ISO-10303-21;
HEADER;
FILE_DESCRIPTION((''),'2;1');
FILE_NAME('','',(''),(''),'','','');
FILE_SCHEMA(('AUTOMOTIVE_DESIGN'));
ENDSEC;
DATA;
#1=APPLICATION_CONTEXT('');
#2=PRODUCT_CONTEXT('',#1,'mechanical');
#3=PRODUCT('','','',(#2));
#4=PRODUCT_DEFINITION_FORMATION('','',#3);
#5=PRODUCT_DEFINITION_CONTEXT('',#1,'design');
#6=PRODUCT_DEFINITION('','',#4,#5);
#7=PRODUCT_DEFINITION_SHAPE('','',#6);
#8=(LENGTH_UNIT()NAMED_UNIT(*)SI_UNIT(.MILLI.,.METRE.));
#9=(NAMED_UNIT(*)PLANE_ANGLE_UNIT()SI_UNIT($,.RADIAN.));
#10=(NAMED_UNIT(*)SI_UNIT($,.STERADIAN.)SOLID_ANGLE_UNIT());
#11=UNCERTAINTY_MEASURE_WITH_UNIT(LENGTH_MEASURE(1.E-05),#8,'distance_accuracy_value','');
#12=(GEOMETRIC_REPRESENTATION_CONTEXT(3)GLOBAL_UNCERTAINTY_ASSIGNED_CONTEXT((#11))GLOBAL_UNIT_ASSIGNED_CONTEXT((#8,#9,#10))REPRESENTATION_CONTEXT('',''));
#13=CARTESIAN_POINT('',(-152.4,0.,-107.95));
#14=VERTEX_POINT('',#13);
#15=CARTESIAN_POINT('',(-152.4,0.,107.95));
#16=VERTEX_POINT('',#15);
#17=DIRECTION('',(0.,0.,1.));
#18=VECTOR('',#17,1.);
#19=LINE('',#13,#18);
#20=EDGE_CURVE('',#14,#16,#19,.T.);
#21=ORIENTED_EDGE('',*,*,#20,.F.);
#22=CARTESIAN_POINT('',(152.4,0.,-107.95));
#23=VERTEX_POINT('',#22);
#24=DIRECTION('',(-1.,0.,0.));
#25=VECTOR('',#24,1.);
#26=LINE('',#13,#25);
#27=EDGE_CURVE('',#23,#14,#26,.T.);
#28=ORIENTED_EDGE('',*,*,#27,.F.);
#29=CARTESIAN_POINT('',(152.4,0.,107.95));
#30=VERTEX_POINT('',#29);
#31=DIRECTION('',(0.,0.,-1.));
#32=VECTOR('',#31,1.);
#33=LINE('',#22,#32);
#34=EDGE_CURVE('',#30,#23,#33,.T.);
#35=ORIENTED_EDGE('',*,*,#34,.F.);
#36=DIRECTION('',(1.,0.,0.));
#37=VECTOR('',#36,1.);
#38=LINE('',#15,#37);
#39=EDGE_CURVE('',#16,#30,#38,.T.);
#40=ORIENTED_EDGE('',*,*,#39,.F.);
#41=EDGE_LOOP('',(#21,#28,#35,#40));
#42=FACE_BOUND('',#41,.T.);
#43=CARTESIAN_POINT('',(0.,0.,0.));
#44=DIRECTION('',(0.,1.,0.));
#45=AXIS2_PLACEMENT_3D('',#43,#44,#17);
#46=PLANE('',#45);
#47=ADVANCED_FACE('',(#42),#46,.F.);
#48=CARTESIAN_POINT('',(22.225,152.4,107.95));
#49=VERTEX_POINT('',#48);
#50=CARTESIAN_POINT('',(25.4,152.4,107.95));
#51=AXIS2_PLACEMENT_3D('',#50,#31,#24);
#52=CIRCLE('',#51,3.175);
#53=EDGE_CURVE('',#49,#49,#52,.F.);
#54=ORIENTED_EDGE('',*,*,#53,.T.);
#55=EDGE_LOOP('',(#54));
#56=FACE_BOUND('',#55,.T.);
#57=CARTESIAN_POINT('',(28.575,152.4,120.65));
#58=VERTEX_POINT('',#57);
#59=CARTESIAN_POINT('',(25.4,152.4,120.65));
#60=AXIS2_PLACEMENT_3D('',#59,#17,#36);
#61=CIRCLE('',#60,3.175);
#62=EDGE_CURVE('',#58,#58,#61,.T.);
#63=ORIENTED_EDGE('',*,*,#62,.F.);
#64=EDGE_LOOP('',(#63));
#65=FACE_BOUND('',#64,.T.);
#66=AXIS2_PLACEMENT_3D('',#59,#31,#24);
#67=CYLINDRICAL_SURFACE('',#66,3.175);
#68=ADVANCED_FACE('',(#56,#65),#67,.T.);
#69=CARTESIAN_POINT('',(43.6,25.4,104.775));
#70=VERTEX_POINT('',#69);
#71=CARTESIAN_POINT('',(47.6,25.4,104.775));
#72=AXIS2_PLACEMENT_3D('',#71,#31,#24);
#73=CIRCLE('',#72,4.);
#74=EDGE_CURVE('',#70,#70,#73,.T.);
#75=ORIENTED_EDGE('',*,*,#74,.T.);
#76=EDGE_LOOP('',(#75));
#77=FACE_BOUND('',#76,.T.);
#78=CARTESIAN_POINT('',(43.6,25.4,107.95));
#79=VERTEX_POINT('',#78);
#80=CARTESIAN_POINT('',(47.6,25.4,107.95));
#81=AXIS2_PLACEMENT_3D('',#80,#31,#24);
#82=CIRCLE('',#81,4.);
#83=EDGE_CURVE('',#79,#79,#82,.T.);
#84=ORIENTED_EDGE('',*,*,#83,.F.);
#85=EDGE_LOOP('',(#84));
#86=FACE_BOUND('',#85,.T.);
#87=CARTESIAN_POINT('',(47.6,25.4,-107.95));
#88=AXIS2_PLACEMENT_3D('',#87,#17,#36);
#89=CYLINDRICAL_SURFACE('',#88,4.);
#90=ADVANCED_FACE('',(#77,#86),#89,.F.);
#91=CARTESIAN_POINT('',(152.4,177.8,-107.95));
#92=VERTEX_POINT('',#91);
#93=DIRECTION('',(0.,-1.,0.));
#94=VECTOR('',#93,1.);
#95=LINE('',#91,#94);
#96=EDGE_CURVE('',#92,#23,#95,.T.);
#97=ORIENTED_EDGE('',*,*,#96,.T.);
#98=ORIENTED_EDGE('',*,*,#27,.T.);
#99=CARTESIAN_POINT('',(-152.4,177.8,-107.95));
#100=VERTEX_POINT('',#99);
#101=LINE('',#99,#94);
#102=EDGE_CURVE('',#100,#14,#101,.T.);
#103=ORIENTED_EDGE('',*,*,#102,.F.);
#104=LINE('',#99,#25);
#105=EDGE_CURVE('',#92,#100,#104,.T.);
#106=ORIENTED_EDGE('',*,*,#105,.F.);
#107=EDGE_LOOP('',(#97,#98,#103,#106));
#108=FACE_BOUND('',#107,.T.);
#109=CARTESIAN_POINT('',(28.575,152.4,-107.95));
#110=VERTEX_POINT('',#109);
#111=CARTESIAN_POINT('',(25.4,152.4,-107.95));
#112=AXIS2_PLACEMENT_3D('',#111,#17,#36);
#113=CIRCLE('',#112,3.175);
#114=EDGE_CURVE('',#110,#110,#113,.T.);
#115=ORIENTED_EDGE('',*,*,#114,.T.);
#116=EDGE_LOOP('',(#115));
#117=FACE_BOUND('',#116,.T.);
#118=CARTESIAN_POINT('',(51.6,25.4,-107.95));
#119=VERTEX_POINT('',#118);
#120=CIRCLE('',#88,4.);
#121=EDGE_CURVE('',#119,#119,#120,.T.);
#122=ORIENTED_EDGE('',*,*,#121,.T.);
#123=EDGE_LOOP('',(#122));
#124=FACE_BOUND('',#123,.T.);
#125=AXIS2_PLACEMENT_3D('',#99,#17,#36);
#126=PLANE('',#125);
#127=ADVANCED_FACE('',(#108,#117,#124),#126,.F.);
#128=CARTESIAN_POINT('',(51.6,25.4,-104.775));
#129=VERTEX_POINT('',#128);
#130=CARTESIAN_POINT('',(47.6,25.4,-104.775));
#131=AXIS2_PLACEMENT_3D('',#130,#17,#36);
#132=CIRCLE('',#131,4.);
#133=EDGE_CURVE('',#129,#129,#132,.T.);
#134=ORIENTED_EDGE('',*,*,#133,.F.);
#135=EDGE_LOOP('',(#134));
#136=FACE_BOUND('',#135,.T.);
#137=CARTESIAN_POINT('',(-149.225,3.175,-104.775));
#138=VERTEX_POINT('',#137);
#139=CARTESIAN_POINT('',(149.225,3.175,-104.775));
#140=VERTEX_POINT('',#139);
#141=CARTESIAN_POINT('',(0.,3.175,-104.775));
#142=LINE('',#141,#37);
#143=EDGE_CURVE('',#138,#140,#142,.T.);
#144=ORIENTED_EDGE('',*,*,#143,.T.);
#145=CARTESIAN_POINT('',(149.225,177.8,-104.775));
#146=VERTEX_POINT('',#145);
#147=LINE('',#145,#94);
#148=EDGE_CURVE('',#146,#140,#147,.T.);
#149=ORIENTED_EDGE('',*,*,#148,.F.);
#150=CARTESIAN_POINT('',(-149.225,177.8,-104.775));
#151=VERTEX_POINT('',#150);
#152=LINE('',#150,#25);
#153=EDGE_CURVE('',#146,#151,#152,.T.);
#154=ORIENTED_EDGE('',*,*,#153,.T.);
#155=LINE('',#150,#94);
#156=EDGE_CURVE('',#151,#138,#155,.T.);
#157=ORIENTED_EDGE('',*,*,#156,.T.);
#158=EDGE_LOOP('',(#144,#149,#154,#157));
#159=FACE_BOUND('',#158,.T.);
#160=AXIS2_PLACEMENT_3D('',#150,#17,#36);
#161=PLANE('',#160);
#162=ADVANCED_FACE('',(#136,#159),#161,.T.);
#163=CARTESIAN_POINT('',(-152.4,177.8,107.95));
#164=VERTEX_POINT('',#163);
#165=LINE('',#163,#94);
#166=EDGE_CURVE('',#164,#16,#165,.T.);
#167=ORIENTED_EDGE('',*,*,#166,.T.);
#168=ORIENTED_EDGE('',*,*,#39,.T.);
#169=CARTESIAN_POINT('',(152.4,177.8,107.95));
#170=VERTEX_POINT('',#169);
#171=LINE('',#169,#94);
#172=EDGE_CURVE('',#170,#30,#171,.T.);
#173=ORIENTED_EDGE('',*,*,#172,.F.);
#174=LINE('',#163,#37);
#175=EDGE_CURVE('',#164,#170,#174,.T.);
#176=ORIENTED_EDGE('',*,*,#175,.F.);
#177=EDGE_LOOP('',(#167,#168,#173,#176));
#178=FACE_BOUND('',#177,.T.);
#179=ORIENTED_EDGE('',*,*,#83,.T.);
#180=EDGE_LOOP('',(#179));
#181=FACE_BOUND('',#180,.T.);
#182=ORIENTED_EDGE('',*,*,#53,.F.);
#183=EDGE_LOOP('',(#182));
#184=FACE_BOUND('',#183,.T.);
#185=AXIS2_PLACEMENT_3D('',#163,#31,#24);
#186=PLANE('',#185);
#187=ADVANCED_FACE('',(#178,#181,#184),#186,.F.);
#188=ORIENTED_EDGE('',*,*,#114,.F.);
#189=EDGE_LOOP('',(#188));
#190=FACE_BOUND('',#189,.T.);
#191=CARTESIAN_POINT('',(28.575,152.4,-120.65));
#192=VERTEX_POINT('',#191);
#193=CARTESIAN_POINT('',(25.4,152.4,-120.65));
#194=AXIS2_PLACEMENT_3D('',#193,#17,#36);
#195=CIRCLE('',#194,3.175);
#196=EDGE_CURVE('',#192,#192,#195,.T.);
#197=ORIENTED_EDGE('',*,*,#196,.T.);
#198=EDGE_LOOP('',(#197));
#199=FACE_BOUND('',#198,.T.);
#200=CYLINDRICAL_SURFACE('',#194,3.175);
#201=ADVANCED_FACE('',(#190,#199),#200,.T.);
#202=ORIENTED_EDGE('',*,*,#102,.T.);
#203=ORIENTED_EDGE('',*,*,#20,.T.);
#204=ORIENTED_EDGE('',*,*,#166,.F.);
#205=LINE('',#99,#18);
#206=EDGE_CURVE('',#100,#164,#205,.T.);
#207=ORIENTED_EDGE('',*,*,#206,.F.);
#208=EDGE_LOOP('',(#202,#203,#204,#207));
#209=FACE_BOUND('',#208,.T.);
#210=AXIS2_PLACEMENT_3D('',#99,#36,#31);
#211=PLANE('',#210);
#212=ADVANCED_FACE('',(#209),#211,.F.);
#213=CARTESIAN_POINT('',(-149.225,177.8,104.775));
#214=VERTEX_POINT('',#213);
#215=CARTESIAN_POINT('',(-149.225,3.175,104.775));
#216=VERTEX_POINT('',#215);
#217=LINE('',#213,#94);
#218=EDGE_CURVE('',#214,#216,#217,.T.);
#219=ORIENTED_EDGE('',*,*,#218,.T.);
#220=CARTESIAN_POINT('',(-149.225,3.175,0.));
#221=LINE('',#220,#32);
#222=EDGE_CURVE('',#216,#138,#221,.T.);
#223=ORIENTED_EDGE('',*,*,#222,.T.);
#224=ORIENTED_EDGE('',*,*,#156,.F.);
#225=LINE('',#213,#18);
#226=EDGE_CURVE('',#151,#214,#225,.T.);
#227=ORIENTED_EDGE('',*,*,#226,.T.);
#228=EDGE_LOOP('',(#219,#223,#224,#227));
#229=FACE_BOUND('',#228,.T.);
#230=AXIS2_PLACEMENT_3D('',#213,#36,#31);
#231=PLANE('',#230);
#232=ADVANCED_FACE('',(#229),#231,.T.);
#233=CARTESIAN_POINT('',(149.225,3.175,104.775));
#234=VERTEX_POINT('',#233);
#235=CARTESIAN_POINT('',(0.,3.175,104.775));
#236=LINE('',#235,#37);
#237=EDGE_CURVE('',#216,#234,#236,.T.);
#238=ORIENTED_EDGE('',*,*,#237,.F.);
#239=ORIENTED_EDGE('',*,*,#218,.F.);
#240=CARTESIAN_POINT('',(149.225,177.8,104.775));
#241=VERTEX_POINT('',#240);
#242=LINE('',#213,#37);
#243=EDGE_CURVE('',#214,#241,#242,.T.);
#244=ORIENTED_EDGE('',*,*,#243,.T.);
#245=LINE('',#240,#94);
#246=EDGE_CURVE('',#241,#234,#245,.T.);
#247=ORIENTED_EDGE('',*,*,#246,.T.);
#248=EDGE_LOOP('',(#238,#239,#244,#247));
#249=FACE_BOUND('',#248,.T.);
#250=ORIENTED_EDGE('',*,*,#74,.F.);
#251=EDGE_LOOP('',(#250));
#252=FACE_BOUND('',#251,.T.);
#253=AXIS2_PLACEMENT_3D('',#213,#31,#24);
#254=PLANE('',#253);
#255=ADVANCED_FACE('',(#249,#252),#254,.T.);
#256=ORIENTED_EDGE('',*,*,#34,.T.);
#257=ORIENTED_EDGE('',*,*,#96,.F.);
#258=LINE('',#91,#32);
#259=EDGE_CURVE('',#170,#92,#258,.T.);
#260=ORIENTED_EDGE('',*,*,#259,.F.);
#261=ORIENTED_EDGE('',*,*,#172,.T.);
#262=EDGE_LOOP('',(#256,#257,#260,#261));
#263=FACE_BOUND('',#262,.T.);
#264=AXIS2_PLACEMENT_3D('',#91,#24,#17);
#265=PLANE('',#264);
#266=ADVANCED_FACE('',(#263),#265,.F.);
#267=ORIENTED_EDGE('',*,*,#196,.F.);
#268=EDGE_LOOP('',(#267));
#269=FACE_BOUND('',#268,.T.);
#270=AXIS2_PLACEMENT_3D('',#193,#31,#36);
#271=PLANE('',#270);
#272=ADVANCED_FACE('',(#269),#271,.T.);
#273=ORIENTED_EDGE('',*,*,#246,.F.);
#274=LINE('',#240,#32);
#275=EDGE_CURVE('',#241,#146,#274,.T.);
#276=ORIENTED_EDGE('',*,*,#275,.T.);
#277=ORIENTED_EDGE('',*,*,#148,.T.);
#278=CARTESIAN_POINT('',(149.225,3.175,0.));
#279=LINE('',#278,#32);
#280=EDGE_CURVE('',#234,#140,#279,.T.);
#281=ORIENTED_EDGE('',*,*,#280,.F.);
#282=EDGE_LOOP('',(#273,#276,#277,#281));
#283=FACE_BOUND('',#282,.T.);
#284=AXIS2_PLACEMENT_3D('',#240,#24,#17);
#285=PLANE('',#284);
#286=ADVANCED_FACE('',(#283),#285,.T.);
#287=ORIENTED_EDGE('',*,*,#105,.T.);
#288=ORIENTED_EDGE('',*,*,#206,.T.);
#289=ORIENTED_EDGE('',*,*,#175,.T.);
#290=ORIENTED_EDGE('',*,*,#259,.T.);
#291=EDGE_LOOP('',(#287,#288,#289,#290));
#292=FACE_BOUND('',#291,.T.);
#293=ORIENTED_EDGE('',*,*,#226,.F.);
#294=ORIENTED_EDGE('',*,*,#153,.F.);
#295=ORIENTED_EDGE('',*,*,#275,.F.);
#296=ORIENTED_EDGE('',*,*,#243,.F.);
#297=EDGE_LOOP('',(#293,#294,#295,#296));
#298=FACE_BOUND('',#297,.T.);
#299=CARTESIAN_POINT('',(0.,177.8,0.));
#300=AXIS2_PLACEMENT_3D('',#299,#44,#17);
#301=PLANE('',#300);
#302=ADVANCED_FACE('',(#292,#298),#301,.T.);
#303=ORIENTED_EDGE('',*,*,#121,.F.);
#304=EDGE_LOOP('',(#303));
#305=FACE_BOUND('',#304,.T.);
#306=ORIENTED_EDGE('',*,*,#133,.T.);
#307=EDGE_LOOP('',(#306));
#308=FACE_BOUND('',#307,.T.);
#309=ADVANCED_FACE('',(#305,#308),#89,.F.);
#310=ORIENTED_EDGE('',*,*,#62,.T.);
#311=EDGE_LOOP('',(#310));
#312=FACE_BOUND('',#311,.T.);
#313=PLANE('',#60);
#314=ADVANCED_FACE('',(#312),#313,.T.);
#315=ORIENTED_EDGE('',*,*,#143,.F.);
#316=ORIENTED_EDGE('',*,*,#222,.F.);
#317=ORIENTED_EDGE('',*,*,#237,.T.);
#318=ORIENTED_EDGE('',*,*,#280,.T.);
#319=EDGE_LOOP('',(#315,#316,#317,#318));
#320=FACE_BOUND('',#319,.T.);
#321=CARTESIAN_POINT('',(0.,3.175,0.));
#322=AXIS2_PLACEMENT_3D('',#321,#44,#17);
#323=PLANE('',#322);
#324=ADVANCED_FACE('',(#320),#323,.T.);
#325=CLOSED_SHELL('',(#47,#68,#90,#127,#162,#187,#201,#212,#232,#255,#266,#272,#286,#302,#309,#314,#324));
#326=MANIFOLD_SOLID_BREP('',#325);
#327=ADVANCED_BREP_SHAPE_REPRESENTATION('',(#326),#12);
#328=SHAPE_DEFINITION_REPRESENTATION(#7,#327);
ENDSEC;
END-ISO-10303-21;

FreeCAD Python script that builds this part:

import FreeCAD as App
import Part
import Sketcher
from FreeCAD import Vector
Q = App.Units.Quantity

doc = App.newDocument("Part")
body = doc.addObject("PartDesign::Body", "Body")

sketch1 = body.newObject("Sketcher::SketchObject", "Sketch")
sketch1.AttachmentSupport = (doc.getObject("XZ_Plane"), [""])
sketch1.MapMode = "FlatFace"
sketch1.addGeometry([
    Part.LineSegment(Vector(-149, -105, 0), Vector(-149, 105, 0)),
    Part.LineSegment(Vector(-149, 105, 0), Vector(149, 105, 0)),
    Part.LineSegment(Vector(149, 105, 0), Vector(149, -105, 0)),
    Part.LineSegment(Vector(149, -105, 0), Vector(-149, -105, 0)),
], False)
sketch1.addConstraint([
    Sketcher.Constraint("Coincident", 0, 2, 1, 1),
    Sketcher.Constraint("Coincident", 1, 2, 2, 1),
    Sketcher.Constraint("Coincident", 2, 2, 3, 1),
    Sketcher.Constraint("Coincident", 3, 2, 0, 1),
    Sketcher.Constraint("Vertical", 0),
    Sketcher.Constraint("Horizontal", 1),
    Sketcher.Constraint("Vertical", 2),
    Sketcher.Constraint("Horizontal", 3),
    Sketcher.Constraint("Symmetric", 0, 2, 2, 2, -1, 1),
    Sketcher.Constraint("DistanceX", 1, 1, 1, 2, Q("11.75 in")),
    Sketcher.Constraint("DistanceY", 0, 1, 0, 2, Q("8.25 in")),
])
pad1 = body.newObject("PartDesign::Pad", "Pad")
pad1.Profile = sketch1
pad1.Length = Q("0.125 in")
pad1.Reversed = True

sketch2 = body.newObject("Sketcher::SketchObject", "Sketch001")
sketch2.AttachmentSupport = (doc.getObject("XZ_Plane"), [""])
sketch2.MapMode = "FlatFace"
sketch2.addGeometry([
    Part.LineSegment(Vector(-152, -108, 0), Vector(-152, 108, 0)),
    Part.LineSegment(Vector(-152, 108, 0), Vector(152, 108, 0)),
    Part.LineSegment(Vector(152, 108, 0), Vector(152, -108, 0)),
    Part.LineSegment(Vector(152, -108, 0), Vector(-152, -108, 0)),
    Part.LineSegment(Vector(149, 105, 0), Vector(-149, 105, 0)),
    Part.LineSegment(Vector(-149, 105, 0), Vector(-149, -105, 0)),
    Part.LineSegment(Vector(-149, -105, 0), Vector(149, -105, 0)),
    Part.LineSegment(Vector(149, -105, 0), Vector(149, 105, 0)),
], False)
sketch2.addConstraint([
    Sketcher.Constraint("Coincident", 0, 2, 1, 1),
    Sketcher.Constraint("Coincident", 1, 2, 2, 1),
    Sketcher.Constraint("Coincident", 2, 2, 3, 1),
    Sketcher.Constraint("Coincident", 3, 2, 0, 1),
    Sketcher.Constraint("Coincident", 4, 2, 5, 1),
    Sketcher.Constraint("Coincident", 5, 2, 6, 1),
    Sketcher.Constraint("Coincident", 6, 2, 7, 1),
    Sketcher.Constraint("Coincident", 7, 2, 4, 1),
    Sketcher.Constraint("Vertical", 0),
    Sketcher.Constraint("Horizontal", 1),
    Sketcher.Constraint("Vertical", 2),
    Sketcher.Constraint("Horizontal", 3),
    Sketcher.Constraint("Horizontal", 4),
    Sketcher.Constraint("Vertical", 5),
    Sketcher.Constraint("Horizontal", 6),
    Sketcher.Constraint("Vertical", 7),
    Sketcher.Constraint("Symmetric", 0, 2, 2, 2, -1, 1),
    Sketcher.Constraint("Symmetric", 4, 2, 6, 2, -1, 1),
    Sketcher.Constraint("DistanceX", 1, 1, 1, 2, Q("12 in")),
    Sketcher.Constraint("DistanceY", 0, 1, 0, 2, Q("8.5 in")),
    Sketcher.Constraint("DistanceX", 4, 2, 4, 1, Q("11.75 in")),
    Sketcher.Constraint("DistanceY", 5, 2, 5, 1, Q("8.25 in")),
])
pad2 = body.newObject("PartDesign::Pad", "Pad001")
pad2.Profile = sketch2
pad2.Length = Q("7 in")
pad2.Reversed = True

sketch3 = body.newObject("Sketcher::SketchObject", "Sketch002")
sketch3.AttachmentSupport = (doc.getObject("XY_Plane"), [""])
sketch3.MapMode = "FlatFace"
sketch3.AttachmentOffset = App.Placement(Vector(0, 0, 4.25 * 25.4), App.Rotation())
sketch3.addGeometry(Part.Circle(Vector(25.4, 152.4, 0), Vector(0, 0, 1), 3.2), False)
sketch3.addConstraint([
    Sketcher.Constraint("Diameter", 0, Q("0.25 in")),
    Sketcher.Constraint("DistanceX", -1, 1, 0, 3, Q("1 in")),
    Sketcher.Constraint("DistanceY", -1, 1, 0, 3, Q("6 in")),
])
pad3 = body.newObject("PartDesign::Pad", "Pad002")
pad3.Profile = sketch3
pad3.Length = Q("0.5 in")

sketch4 = body.newObject("Sketcher::SketchObject", "Sketch003")
sketch4.AttachmentSupport = (doc.getObject("XY_Plane"), [""])
sketch4.MapMode = "FlatFace"
sketch4.AttachmentOffset = App.Placement(Vector(0, 0, 4.25 * 25.4), App.Rotation())
sketch4.addGeometry(Part.Circle(Vector(47.6, 25.4, 0), Vector(0, 0, 1), 4), False)
sketch4.addConstraint([
    Sketcher.Constraint("DistanceY", -1, 1, 0, 3, Q("1 in")),
    Sketcher.Constraint("Diameter", 0, 8.0),
    Sketcher.Constraint("DistanceX", -1, 1, 0, 3, 47.6),
])
pocket1 = body.newObject("PartDesign::Pocket", "Pocket")
pocket1.Profile = sketch4
pocket1.Type = "ThroughAll"
pocket1.Midplane = True
doc.recompute()

mirrored = body.newObject("PartDesign::Mirrored", "Mirrored")
mirrored.Originals = [pad3]
mirrored.MirrorPlane = (doc.getObject("XY_Plane"), [""])
body.Tip = mirrored

doc.recompute()
